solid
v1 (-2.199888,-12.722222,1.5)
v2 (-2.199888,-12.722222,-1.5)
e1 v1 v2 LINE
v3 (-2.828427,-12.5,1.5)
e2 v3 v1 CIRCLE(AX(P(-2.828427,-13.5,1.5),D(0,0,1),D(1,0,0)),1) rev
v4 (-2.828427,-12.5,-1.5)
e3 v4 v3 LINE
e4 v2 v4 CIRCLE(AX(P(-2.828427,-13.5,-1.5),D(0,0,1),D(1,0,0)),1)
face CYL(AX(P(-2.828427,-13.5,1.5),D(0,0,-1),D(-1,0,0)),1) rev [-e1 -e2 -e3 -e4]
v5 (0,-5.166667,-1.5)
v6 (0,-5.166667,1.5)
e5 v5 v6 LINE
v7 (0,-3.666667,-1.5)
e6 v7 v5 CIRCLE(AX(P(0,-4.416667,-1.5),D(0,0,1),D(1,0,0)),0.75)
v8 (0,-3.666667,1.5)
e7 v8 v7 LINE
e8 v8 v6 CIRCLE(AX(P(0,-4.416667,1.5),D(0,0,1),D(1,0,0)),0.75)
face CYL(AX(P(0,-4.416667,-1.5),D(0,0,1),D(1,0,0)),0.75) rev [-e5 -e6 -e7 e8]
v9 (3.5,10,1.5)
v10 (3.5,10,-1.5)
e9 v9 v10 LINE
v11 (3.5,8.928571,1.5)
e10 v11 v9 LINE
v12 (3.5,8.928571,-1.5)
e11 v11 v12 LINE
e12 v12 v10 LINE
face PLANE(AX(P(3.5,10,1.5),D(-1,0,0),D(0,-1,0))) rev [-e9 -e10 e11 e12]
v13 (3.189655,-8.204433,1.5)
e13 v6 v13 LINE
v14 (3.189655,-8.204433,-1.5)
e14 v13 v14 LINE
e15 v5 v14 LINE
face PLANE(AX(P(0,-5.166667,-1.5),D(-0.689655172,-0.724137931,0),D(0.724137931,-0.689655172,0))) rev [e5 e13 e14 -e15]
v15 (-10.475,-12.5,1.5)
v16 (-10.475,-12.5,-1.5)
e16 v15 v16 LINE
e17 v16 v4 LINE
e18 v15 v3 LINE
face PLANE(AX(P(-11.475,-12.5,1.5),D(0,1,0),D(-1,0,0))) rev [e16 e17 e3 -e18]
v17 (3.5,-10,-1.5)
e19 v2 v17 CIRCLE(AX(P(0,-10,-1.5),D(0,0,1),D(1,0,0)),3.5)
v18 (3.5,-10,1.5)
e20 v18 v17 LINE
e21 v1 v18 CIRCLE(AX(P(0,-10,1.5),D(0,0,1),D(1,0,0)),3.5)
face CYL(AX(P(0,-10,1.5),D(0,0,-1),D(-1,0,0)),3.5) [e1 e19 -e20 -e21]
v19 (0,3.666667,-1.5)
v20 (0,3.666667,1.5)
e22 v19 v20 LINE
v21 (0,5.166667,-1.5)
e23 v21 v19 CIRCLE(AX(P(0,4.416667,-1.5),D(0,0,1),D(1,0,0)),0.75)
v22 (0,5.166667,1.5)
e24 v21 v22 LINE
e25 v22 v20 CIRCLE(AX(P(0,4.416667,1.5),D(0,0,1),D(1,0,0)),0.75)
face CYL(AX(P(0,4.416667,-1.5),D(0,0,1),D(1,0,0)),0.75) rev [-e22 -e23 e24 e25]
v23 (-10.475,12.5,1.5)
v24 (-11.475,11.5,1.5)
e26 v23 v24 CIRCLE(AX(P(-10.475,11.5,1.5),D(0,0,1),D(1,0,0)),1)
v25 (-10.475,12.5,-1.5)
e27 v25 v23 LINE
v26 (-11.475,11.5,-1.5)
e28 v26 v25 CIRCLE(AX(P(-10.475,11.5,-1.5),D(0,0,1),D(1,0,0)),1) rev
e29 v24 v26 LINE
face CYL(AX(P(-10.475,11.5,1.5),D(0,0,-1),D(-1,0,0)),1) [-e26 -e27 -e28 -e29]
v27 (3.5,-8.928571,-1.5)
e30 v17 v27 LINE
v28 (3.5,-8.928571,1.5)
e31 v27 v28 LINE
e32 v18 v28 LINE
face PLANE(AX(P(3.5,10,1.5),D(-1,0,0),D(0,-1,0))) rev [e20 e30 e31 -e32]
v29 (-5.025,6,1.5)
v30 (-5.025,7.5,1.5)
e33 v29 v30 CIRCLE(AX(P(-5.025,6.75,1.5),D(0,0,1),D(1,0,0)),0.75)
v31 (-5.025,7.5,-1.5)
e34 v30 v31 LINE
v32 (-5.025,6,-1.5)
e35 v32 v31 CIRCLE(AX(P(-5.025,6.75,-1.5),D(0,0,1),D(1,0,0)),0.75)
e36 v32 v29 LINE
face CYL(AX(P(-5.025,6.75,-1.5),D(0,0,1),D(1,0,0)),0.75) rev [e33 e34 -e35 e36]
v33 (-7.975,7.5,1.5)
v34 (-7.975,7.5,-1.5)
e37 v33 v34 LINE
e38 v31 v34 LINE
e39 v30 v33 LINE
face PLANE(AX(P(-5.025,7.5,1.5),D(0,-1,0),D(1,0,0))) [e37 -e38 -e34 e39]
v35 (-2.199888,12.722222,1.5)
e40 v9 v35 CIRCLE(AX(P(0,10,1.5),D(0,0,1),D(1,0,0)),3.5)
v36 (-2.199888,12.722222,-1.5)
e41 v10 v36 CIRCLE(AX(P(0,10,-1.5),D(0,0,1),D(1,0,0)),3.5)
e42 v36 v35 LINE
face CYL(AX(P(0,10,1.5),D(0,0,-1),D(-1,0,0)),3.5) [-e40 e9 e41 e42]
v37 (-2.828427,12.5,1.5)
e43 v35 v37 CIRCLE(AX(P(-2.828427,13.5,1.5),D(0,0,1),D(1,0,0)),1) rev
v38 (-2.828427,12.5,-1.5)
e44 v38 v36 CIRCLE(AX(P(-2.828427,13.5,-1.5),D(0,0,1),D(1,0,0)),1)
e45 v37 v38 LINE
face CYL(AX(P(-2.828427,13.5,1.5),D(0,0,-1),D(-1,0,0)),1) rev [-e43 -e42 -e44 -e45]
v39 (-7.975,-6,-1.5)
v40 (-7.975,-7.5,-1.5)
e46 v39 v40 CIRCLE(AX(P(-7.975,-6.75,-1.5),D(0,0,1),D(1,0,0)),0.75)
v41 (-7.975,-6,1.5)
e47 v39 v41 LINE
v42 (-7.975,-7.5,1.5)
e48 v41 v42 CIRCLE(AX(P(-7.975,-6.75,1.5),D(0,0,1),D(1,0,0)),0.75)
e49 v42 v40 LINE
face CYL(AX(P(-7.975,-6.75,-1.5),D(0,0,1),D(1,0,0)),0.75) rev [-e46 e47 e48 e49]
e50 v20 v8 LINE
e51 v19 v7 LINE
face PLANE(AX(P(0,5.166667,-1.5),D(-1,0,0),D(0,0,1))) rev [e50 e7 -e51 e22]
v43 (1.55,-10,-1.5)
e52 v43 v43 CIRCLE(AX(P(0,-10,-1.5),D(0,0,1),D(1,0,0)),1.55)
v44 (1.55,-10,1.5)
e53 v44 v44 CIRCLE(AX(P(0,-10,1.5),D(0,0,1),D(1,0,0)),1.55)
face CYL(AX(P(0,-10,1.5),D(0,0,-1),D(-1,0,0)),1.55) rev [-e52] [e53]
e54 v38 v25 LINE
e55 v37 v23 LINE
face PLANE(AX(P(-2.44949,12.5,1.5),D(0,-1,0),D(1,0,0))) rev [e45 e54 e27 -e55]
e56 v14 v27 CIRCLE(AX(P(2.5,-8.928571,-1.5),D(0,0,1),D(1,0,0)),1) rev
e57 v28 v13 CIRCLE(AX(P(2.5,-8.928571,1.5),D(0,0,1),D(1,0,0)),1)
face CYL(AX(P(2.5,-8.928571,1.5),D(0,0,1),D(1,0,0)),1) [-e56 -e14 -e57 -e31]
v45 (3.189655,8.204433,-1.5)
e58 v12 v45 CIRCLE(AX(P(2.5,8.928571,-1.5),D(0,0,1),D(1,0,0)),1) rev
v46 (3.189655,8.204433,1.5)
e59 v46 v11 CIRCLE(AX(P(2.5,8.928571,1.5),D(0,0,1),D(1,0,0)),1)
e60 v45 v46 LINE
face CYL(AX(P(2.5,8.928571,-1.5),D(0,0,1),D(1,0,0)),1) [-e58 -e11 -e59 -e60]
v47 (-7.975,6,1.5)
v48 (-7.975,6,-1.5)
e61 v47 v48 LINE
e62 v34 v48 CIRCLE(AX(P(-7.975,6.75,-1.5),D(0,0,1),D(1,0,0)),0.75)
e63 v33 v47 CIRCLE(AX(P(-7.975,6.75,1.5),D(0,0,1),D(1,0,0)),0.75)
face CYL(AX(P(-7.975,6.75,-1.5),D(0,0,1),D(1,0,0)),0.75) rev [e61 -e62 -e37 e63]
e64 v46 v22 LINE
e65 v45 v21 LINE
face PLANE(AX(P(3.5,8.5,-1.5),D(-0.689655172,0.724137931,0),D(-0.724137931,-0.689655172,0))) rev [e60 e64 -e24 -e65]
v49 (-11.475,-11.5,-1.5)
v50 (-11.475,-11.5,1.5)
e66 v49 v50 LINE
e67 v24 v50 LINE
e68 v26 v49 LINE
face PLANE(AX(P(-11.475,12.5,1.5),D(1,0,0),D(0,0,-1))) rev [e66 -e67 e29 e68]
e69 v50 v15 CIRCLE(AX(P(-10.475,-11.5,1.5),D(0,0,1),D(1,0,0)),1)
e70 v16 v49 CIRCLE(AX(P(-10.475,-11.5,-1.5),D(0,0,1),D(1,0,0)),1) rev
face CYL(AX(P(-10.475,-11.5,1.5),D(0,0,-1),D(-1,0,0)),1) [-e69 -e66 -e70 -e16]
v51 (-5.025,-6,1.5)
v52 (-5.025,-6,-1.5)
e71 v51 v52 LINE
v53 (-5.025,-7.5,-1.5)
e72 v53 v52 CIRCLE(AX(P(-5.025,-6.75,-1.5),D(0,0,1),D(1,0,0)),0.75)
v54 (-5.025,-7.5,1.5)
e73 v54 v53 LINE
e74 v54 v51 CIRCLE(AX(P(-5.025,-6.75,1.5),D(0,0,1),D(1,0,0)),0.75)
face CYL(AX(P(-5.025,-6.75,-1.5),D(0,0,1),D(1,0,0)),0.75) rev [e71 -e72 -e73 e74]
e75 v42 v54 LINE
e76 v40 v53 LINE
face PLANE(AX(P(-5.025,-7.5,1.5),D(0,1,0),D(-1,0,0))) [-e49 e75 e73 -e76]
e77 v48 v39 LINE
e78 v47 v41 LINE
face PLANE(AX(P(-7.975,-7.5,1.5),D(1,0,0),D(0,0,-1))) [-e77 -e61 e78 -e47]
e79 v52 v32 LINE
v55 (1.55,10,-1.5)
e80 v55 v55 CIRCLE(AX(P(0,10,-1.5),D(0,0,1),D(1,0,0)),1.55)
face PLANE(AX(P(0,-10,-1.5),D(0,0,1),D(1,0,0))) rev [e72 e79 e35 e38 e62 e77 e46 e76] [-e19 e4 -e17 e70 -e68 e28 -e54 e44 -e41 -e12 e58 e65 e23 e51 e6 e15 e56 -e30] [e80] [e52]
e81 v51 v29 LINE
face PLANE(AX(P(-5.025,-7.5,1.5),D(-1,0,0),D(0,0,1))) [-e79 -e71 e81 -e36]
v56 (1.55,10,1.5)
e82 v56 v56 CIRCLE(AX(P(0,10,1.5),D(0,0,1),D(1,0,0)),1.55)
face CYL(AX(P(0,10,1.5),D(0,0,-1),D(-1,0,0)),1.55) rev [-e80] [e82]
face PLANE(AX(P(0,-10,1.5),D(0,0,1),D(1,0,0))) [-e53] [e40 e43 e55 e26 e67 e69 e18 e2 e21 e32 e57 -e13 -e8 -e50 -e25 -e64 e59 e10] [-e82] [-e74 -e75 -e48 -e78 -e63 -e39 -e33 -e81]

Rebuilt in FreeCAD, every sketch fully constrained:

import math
import FreeCAD as App
import Part
import Sketcher
from FreeCAD import Vector
Q = App.Units.Quantity


def edges_at(feature, points):
    """Names of the edges that pass closest to the given points."""
    edges = feature.Shape.Edges
    near = lambda p: min(range(len(edges)), key=lambda i: edges[i].distToShape(Part.Vertex(*p))[0])
    return sorted({f"Edge{near(p) + 1}" for p in points})


def add_polygon(sketch, points):
    """Adds a closed chain of lines whose ends are joined by coincident constraints."""
    first, n = sketch.GeometryCount, len(points)
    for a, b in zip(points, points[1:] + points[:1]):
        sketch.addGeometry(Part.LineSegment(App.Vector(*a, 0), App.Vector(*b, 0)), False)
    for i in range(n):
        sketch.addConstraint(Sketcher.Constraint("Coincident", first + i, 2, first + (i + 1) % n, 1))

doc = App.newDocument("Part")
params = doc.addObject("Spreadsheet::Sheet", "Params")
for row, (alias, value) in enumerate([
    ("sketch1_diameter", "3.1 mm"),
    ("sketch1_radius", "3.5 mm"),
    ("sketch1_height", "25 mm"),
    ("sketch1_height2", "20 mm"),
    ("sketch1_height3", "15 mm"),
    ("pad1_length", "3 mm"),
    ("fillet_radius", "1 mm"),
    ("sketch2_diameter", "1.5 mm"),
    ("sketch3_height", "17 mm"),
    ("sketch4_diameter", "1.5 mm"),
    ("fillet2_radius", "1 mm"),
], start=1):
    params.set(f"A{row}", alias)
    params.set(f"B{row}", "=" + value)
    params.setAlias(f"B{row}", alias)

body = doc.addObject("PartDesign::Body", "Body")

# Sketch on XY plane
sketch1 = body.newObject("Sketcher::SketchObject", "Sketch")
sketch1.AttachmentSupport = (doc.getObject("XY_Plane"), [""])
sketch1.MapMode = "FlatFace"
sketch1.addGeometry(Part.LineSegment(Vector(-2.44949, 12.5, 0), Vector(-11.475, 12.5, 0)), False)  # 0
sketch1.addGeometry(Part.LineSegment(Vector(-11.475, 12.5, 0), Vector(-11.475, -12.5, 0)), False)  # 1
sketch1.addGeometry(Part.LineSegment(Vector(-11.475, -12.5, 0), Vector(-2.44949, -12.5, 0)), False)  # 2
sketch1.addGeometry(Part.ArcOfCircle(Part.Circle(Vector(0, -10, 0), Vector(0, 0, 1), 3.5), math.radians(-134.415309), math.radians(0)), False)  # 3
sketch1.addGeometry(Part.LineSegment(Vector(3.5, -10, 0), Vector(3.5, 10, 0)), False)  # 4
sketch1.addGeometry(Part.ArcOfCircle(Part.Circle(Vector(0, 10, 0), Vector(0, 0, 1), 3.5), math.radians(0), math.radians(134.415309)), False)  # 5
sketch1.addGeometry(Part.Circle(Vector(0, -10, 0), Vector(0, 0, 1), 1.55), False)  # 6
add_polygon(sketch1, [(-5.025, -7.5), (-7.975, -7.5), (-7.975, 7.5), (-5.025, 7.5)])  # lines 7-10
sketch1.addGeometry(Part.Circle(Vector(0, 10, 0), Vector(0, 0, 1), 1.55), False)  # 11
sketch1.addConstraint(Sketcher.Constraint("Coincident", 0, 2, 1, 1))
sketch1.addConstraint(Sketcher.Constraint("Coincident", 1, 2, 2, 1))
sketch1.addConstraint(Sketcher.Constraint("Coincident", 2, 2, 3, 1))
sketch1.addConstraint(Sketcher.Constraint("Tangent", 3, 2, 4, 1))
sketch1.addConstraint(Sketcher.Constraint("Tangent", 4, 2, 5, 1))
sketch1.addConstraint(Sketcher.Constraint("Coincident", 5, 2, 0, 1))
sketch1.addConstraint(Sketcher.Constraint("Horizontal", 0))
sketch1.addConstraint(Sketcher.Constraint("Vertical", 1))
sketch1.addConstraint(Sketcher.Constraint("Horizontal", 2))
sketch1.addConstraint(Sketcher.Constraint("Vertical", 4))
sketch1.addConstraint(Sketcher.Constraint("Horizontal", 7))
sketch1.addConstraint(Sketcher.Constraint("Vertical", 8))
sketch1.addConstraint(Sketcher.Constraint("Horizontal", 9))
sketch1.addConstraint(Sketcher.Constraint("Vertical", 10))
sketch1.addConstraint(Sketcher.Constraint("Coincident", 6, 3, 3, 3))
sketch1.addConstraint(Sketcher.Constraint("Coincident", 11, 3, 5, 3))
sketch1.addConstraint(Sketcher.Constraint("Equal", 3, 5))
sketch1.addConstraint(Sketcher.Constraint("Equal", 6, 11))
sketch1.addConstraint(Sketcher.Constraint("Symmetric", 3, 3, 5, 3, -1, 1))
sketch1.addConstraint(Sketcher.Constraint("Vertical", 2, 2, 5, 2))
sketch1.addConstraint(Sketcher.Constraint("Diameter", 6, Q("3.1 mm")))
sketch1.addConstraint(Sketcher.Constraint("Radius", 3, Q("3.5 mm")))
sketch1.addConstraint(Sketcher.Constraint("DistanceY", 1, 2, 1, 1, Q("25 mm")))
sketch1.addConstraint(Sketcher.Constraint("DistanceY", 4, 1, 4, 2, Q("20 mm")))
sketch1.addConstraint(Sketcher.Constraint("DistanceY", 8, 1, 8, 2, Q("15 mm")))
sketch1.addConstraint(Sketcher.Constraint("DistanceY", 1, 2, 7, 2, Q("5 mm")))
sketch1.addConstraint(Sketcher.Constraint("DistanceX", 7, 2, 7, 1, Q("2.95 mm")))
sketch1.addConstraint(Sketcher.Constraint("DistanceX", 1, 2, 7, 2, Q("3.5 mm")))
sketch1.addConstraint(Sketcher.Constraint("DistanceX", 0, 2, -1, 1, Q("11.475 mm")))
sketch1.setExpression("Constraints[24]", "Params.sketch1_diameter")
sketch1.setExpression("Constraints[25]", "Params.sketch1_radius")
sketch1.setExpression("Constraints[26]", "Params.sketch1_height")
sketch1.setExpression("Constraints[27]", "Params.sketch1_height2")
sketch1.setExpression("Constraints[28]", "Params.sketch1_height3")
pad1 = body.newObject("PartDesign::Pad", "Pad")
pad1.Profile = sketch1
pad1.setExpression("Length", "Params.pad1_length")
pad1.Midplane = True
doc.recompute()

fillet = body.newObject("PartDesign::Fillet", "Fillet")
fillet.Base = (pad1, edges_at(pad1, [(-11.475, -12.5, 0), (-11.475, 12.5, 0)]))
fillet.setExpression("Radius", "Params.fillet_radius")

# Sketch on XY plane
sketch2 = body.newObject("Sketcher::SketchObject", "Sketch001")
sketch2.AttachmentSupport = (doc.getObject("XY_Plane"), [""])
sketch2.MapMode = "FlatFace"
sketch2.AttachmentOffset = App.Placement(Vector(0, 0, 1.5), App.Rotation())
sketch2.addGeometry(Part.Circle(Vector(-7.975, 6.75, 0), Vector(0, 0, 1), 0.75), False)
sketch2.addGeometry(Part.Circle(Vector(-5.025, 6.75, 0), Vector(0, 0, 1), 0.75), False)
sketch2.addGeometry(Part.Circle(Vector(-7.975, -6.75, 0), Vector(0, 0, 1), 0.75), False)
sketch2.addGeometry(Part.Circle(Vector(-5.025, -6.75, 0), Vector(0, 0, 1), 0.75), False)
sketch2.addConstraint(Sketcher.Constraint("Equal", 0, 1))
sketch2.addConstraint(Sketcher.Constraint("Equal", 1, 2))
sketch2.addConstraint(Sketcher.Constraint("Equal", 2, 3))
sketch2.addConstraint(Sketcher.Constraint("Symmetric", 0, 3, 2, 3, -1))
sketch2.addConstraint(Sketcher.Constraint("Symmetric", 1, 3, 3, 3, -1))
sketch2.addConstraint(Sketcher.Constraint("Horizontal", 0, 3, 1, 3))
sketch2.addConstraint(Sketcher.Constraint("Diameter", 0, Q("1.5 mm")))
sketch2.addConstraint(Sketcher.Constraint("DistanceY", 2, 3, 0, 3, Q("13.5 mm")))
sketch2.addConstraint(Sketcher.Constraint("DistanceX", 0, 3, 1, 3, Q("2.95 mm")))
sketch2.addConstraint(Sketcher.Constraint("DistanceX", 0, 3, -1, 1, Q("7.975 mm")))
sketch2.setExpression("Constraints[6]", "Params.sketch2_diameter")
pocket1 = body.newObject("PartDesign::Pocket", "Pocket")
pocket1.Profile = sketch2
pocket1.Type = "ThroughAll"

# Sketch on XY plane
sketch3 = body.newObject("Sketcher::SketchObject", "Sketch002")
sketch3.AttachmentSupport = (doc.getObject("XY_Plane"), [""])
sketch3.MapMode = "FlatFace"
sketch3.AttachmentOffset = App.Placement(Vector(0, 0, 1.5), App.Rotation())
add_polygon(sketch3, [(3.5, 8.5), (0, 5.166667), (0, -5.166667), (3.5, -8.5)])  # lines 0-3
sketch3.addConstraint(Sketcher.Constraint("Vertical", 1))
sketch3.addConstraint(Sketcher.Constraint("Vertical", 3))
sketch3.addConstraint(Sketcher.Constraint("Symmetric", 0, 2, 1, 2, -1, 1))
sketch3.addConstraint(Sketcher.Constraint("Equal", 0, 2))
sketch3.addConstraint(Sketcher.Constraint("DistanceY", 3, 1, 3, 2, Q("17 mm")))
sketch3.addConstraint(Sketcher.Constraint("DistanceX", -1, 1, 2, 2, Q("3.5 mm")))
sketch3.addConstraint(Sketcher.Constraint("DistanceY", 1, 2, 1, 1, Q("10.333333 mm")))
sketch3.setExpression("Constraints[8]", "Params.sketch3_height")
pocket2 = body.newObject("PartDesign::Pocket", "Pocket001")
pocket2.Profile = sketch3
pocket2.Type = "ThroughAll"

# Sketch on XY plane
sketch4 = body.newObject("Sketcher::SketchObject", "Sketch003")
sketch4.AttachmentSupport = (doc.getObject("XY_Plane"), [""])
sketch4.MapMode = "FlatFace"
sketch4.AttachmentOffset = App.Placement(Vector(0, 0, 1.5), App.Rotation())
sketch4.addGeometry(Part.Circle(Vector(0, 4.416667, 0), Vector(0, 0, 1), 0.75), False)
sketch4.addGeometry(Part.Circle(Vector(0, -4.416667, 0), Vector(0, 0, 1), 0.75), False)
sketch4.addConstraint(Sketcher.Constraint("Equal", 0, 1))
sketch4.addConstraint(Sketcher.Constraint("Symmetric", 0, 3, 1, 3, -1, 1))
sketch4.addConstraint(Sketcher.Constraint("PointOnObject", 0, 3, -2))
sketch4.addConstraint(Sketcher.Constraint("Diameter", 0, Q("1.5 mm")))
sketch4.addConstraint(Sketcher.Constraint("DistanceY", -1, 1, 0, 3, Q("4.416667 mm")))
sketch4.setExpression("Constraints[3]", "Params.sketch4_diameter")
pocket3 = body.newObject("PartDesign::Pocket", "Pocket002")
pocket3.Profile = sketch4
pocket3.Type = "ThroughAll"
doc.recompute()

fillet2 = body.newObject("PartDesign::Fillet", "Fillet001")
fillet2.Base = (pocket3, edges_at(pocket3, [
    (-2.449, 12.5, 0),
    (-2.449, -12.5, 0),
    (3.5, 8.5, 0),
    (3.5, -8.5, 0),
]))
fillet2.setExpression("Radius", "Params.fillet2_radius")

doc.recompute()
